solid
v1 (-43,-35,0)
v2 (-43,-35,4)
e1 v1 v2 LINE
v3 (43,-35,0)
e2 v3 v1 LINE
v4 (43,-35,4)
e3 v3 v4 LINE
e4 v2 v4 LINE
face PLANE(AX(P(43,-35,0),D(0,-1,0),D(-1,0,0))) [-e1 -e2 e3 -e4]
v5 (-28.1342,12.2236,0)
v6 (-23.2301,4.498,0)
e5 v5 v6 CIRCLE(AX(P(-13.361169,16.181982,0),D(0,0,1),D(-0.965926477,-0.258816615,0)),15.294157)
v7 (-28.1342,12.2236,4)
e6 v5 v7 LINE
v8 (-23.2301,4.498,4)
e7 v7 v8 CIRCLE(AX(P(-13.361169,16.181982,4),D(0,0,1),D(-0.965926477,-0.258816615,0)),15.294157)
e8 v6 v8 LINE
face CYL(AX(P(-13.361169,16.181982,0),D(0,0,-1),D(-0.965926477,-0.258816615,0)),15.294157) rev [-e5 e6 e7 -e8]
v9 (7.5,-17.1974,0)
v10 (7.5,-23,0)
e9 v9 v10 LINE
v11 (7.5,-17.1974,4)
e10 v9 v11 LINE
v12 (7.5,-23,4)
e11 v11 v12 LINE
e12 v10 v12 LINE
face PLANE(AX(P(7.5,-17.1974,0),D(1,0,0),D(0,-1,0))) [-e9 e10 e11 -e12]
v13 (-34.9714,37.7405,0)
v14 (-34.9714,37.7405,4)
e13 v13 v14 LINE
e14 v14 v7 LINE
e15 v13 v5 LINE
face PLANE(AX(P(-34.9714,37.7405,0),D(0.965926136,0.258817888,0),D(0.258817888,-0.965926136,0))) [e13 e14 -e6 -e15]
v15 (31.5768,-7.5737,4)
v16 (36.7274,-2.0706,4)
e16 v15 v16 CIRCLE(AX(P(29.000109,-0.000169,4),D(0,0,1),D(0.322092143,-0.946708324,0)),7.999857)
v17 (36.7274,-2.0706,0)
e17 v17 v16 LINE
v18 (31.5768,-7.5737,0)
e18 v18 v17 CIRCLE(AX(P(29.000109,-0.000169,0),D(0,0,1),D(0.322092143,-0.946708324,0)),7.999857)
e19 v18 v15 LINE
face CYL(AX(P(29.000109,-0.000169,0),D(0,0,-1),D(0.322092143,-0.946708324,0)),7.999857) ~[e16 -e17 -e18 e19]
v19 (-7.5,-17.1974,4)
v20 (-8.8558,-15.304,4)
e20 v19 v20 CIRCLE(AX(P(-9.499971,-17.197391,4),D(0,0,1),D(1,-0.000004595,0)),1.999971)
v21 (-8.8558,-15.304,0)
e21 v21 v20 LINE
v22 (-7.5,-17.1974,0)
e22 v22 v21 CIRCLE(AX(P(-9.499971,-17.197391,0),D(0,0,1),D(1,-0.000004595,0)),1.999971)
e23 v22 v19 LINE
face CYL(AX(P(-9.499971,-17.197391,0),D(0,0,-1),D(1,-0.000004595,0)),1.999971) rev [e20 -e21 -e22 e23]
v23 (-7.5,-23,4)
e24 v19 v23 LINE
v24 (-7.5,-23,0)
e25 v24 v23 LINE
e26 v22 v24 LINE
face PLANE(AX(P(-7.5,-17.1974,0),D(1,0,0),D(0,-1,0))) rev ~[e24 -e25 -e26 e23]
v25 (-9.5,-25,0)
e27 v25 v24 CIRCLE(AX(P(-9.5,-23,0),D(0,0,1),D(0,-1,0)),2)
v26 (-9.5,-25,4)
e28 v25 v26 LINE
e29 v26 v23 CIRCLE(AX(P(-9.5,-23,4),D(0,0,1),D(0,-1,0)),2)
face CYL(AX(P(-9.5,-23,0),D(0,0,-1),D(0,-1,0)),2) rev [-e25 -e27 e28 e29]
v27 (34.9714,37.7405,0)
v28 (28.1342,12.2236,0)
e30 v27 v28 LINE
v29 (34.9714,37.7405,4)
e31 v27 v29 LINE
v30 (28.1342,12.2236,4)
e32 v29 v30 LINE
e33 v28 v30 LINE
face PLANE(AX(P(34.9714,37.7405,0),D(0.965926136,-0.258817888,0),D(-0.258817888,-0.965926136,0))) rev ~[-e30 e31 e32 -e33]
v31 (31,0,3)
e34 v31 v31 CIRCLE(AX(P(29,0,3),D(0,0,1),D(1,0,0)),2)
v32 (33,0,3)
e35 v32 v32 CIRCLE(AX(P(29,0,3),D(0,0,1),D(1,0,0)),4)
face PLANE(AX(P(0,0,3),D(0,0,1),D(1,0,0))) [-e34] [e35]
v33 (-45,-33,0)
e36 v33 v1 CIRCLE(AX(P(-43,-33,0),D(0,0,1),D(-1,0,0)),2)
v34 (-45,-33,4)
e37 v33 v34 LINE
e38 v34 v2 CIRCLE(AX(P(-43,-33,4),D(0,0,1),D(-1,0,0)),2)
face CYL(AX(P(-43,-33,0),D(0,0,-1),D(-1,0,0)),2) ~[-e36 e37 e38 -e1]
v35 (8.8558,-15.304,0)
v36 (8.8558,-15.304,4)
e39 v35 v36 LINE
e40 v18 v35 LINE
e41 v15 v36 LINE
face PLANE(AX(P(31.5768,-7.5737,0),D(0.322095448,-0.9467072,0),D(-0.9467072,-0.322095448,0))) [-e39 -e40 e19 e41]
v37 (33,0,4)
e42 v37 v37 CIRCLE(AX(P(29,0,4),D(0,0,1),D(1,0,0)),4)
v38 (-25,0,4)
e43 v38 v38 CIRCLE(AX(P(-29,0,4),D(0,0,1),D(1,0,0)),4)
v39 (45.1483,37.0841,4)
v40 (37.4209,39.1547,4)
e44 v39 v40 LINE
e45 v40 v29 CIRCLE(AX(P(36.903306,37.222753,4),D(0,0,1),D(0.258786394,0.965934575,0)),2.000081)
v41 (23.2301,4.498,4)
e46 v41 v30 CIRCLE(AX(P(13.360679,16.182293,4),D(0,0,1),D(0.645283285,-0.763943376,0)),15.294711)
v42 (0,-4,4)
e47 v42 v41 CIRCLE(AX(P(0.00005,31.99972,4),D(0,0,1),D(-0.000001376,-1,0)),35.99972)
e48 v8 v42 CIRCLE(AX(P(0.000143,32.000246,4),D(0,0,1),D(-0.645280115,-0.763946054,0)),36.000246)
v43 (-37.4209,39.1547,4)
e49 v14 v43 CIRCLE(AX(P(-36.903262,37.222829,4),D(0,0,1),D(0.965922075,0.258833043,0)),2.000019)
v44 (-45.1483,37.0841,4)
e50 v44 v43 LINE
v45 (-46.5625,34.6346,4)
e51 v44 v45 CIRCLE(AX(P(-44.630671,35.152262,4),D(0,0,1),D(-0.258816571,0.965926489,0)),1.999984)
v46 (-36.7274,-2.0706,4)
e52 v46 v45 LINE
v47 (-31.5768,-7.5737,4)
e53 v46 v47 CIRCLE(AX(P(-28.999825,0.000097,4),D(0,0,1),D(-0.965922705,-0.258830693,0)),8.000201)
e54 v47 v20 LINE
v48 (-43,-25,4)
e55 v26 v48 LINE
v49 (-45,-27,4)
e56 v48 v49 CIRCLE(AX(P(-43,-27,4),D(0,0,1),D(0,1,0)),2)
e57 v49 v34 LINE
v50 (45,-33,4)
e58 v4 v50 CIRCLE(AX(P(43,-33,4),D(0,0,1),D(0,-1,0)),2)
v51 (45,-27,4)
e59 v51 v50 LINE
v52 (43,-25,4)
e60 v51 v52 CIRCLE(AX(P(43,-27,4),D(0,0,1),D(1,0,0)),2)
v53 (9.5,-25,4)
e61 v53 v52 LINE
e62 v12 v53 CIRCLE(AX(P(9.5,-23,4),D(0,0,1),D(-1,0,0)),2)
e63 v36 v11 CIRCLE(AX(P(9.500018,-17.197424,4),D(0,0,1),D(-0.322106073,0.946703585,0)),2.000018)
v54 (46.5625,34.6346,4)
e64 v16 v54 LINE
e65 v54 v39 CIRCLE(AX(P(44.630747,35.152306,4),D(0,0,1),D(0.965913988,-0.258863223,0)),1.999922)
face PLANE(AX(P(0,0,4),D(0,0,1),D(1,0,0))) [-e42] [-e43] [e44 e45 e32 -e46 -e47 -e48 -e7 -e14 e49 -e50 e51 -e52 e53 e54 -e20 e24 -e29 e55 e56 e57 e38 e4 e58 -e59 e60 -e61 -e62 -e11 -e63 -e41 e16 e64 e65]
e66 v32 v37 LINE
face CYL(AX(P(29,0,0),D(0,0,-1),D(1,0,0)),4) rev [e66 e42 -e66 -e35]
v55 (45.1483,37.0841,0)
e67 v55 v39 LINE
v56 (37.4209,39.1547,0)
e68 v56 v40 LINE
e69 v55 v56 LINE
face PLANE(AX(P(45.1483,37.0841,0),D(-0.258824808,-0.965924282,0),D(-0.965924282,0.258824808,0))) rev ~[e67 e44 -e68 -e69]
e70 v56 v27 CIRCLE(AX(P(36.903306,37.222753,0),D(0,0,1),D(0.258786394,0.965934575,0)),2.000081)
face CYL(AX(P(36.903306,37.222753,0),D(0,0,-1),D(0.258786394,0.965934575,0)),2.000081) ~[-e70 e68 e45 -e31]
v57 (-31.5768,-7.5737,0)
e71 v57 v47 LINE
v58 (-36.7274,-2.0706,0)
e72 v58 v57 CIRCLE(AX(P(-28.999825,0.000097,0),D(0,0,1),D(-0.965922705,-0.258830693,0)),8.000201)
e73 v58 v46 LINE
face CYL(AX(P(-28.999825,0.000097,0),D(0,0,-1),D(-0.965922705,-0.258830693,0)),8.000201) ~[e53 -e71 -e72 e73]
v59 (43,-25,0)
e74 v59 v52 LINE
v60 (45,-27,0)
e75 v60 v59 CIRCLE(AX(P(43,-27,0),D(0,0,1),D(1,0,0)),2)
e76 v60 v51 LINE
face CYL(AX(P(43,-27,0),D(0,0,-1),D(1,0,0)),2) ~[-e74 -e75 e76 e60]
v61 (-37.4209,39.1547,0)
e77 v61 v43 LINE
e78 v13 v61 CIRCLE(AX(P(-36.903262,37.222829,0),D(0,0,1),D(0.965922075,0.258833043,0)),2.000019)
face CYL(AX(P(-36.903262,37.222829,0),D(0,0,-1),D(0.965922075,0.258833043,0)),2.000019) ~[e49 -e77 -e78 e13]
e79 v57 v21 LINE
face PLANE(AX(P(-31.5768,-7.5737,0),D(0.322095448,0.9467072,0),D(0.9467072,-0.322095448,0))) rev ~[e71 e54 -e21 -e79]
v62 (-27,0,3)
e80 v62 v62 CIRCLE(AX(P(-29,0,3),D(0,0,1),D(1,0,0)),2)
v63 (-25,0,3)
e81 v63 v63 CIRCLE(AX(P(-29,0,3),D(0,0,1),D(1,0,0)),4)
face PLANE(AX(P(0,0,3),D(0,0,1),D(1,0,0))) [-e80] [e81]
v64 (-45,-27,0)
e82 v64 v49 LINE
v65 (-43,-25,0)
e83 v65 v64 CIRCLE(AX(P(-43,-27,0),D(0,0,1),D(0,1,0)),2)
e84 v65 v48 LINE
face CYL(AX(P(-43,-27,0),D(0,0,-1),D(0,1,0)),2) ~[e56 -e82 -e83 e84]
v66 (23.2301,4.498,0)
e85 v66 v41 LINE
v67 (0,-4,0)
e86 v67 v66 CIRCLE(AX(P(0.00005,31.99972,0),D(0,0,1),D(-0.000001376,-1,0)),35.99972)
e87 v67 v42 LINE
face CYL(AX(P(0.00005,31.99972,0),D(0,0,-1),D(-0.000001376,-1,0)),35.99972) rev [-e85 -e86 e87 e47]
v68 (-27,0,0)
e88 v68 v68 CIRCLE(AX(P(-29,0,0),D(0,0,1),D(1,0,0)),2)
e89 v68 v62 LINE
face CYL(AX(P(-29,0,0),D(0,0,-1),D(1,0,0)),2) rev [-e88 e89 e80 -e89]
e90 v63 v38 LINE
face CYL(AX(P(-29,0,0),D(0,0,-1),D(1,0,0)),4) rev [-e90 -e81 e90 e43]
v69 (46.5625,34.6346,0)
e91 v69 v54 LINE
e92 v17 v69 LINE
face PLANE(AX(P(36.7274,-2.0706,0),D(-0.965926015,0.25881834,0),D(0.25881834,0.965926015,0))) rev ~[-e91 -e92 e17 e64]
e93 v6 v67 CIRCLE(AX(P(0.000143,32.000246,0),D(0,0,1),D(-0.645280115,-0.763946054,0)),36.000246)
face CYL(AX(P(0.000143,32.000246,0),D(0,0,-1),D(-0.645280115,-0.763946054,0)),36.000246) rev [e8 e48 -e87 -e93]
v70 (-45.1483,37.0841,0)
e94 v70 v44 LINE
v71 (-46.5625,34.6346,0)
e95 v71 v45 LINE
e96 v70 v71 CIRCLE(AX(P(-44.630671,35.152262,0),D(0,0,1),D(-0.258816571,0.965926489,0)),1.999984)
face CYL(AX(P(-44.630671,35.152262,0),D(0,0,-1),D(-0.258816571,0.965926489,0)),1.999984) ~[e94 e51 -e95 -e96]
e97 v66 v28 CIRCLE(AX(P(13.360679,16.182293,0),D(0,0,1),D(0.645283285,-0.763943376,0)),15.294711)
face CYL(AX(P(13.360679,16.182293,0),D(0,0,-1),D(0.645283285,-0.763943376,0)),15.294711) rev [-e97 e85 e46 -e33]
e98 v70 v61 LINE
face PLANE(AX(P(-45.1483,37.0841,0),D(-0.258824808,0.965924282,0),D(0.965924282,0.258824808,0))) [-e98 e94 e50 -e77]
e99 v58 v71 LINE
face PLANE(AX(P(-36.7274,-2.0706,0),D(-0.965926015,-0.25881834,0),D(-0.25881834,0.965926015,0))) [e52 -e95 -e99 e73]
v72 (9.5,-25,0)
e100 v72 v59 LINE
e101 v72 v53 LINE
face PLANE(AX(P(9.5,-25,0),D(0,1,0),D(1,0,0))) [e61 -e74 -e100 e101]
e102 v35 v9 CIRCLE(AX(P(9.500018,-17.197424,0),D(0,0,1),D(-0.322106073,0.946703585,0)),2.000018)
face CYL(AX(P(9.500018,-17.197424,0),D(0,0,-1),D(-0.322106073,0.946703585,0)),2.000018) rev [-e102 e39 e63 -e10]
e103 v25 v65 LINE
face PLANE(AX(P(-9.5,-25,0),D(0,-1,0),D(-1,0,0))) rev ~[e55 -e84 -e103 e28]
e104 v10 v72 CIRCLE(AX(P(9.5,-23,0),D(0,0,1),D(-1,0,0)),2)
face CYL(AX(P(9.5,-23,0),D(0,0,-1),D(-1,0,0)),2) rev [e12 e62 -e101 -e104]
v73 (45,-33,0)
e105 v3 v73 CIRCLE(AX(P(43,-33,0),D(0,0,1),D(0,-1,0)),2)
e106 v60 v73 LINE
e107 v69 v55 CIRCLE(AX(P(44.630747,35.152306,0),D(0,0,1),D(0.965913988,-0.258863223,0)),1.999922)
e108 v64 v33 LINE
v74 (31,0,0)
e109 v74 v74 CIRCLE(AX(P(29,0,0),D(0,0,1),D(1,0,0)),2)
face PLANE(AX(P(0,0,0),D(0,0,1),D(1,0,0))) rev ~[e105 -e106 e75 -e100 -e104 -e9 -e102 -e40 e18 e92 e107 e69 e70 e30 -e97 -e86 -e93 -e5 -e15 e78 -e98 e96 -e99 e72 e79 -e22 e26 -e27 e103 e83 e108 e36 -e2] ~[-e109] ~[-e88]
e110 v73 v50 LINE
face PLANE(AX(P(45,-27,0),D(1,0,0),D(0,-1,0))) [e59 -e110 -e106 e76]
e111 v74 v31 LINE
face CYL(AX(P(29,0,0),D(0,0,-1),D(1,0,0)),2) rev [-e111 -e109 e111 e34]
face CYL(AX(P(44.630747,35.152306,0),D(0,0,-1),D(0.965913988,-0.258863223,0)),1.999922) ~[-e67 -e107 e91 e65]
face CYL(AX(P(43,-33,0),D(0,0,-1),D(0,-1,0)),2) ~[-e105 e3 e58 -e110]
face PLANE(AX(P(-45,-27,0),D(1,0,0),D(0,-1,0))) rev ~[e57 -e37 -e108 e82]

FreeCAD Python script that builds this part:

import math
import FreeCAD as App
import Part
import Sketcher
Q = App.Units.Quantity

doc = App.newDocument("Part")
body = doc.addObject("PartDesign::Body", "Body")
body.AllowCompound = True

sketch1 = doc.addObject("Sketcher::SketchObject", "Sketch")
body.addObject(sketch1)
sketch1.AttachmentSupport = (doc.XY_Plane, [""])
sketch1.MapMode = "FlatFace"
sketch1.addGeometry([
    Part.Circle(App.Vector(-29, 0, 0), App.Vector(0, 0, 1), 4),
    Part.Circle(App.Vector(-29, 0, 0), App.Vector(0, 0, 1), 2),
    Part.Circle(App.Vector(29, 0, 0), App.Vector(0, 0, 1), 4),
    Part.Circle(App.Vector(29, 0, 0), App.Vector(0, 0, 1), 2),
], False)
sketch1.addConstraint([
    Sketcher.Constraint("Coincident", 1, 3, 0, 3),
    Sketcher.Constraint("Coincident", 3, 3, 2, 3),
    Sketcher.Constraint("Equal", 0, 2),
    Sketcher.Constraint("Equal", 1, 3),
    Sketcher.Constraint("Symmetric", 0, 3, 2, 3, -1, 1),
    Sketcher.Constraint("PointOnObject", 0, 3, -1),
    Sketcher.Constraint("Diameter", 0, 8.0),
    Sketcher.Constraint("Diameter", 1, 4.0),
    Sketcher.Constraint("DistanceX", 0, 3, 2, 3, 58.0),
])
pad1 = doc.addObject("PartDesign::Pad", "Pad")
body.addObject(pad1)
pad1.Profile = sketch1
pad1.Length = 3

sketch2 = doc.addObject("Sketcher::SketchObject", "Sketch001")
body.addObject(sketch2)
sketch2.AttachmentSupport = (doc.XY_Plane, [""])
sketch2.MapMode = "FlatFace"
sketch2.addGeometry([
    Part.LineSegment(App.Vector(-46.6, 34.6, 0), App.Vector(-36.7, -2.1, 0)),
    Part.ArcOfCircle(Part.Circle(App.Vector(-29, 0, 0), App.Vector(0, 0, 1), 8), math.radians(-165), math.radians(-109)),
    Part.LineSegment(App.Vector(-31.6, -7.6, 0), App.Vector(-8.9, -15.3, 0)),
    Part.ArcOfCircle(Part.Circle(App.Vector(-9.5, -17.2, 0), App.Vector(0, 0, 1), 2), math.radians(0), math.radians(71)),
    Part.LineSegment(App.Vector(-7.5, -17.2, 0), App.Vector(-7.5, -23, 0)),
    Part.ArcOfCircle(Part.Circle(App.Vector(-9.5, -23, 0), App.Vector(0, 0, 1), 2), math.radians(-90), math.radians(0)),
    Part.LineSegment(App.Vector(-9.5, -25, 0), App.Vector(-43, -25, 0)),
    Part.ArcOfCircle(Part.Circle(App.Vector(-43, -27, 0), App.Vector(0, 0, 1), 2), math.radians(90), math.radians(180)),
    Part.LineSegment(App.Vector(-45, -27, 0), App.Vector(-45, -33, 0)),
    Part.ArcOfCircle(Part.Circle(App.Vector(-43, -33, 0), App.Vector(0, 0, 1), 2), math.radians(180), math.radians(270)),
    Part.LineSegment(App.Vector(-43, -35, 0), App.Vector(43, -35, 0)),
    Part.ArcOfCircle(Part.Circle(App.Vector(43, -33, 0), App.Vector(0, 0, 1), 2), math.radians(-90), math.radians(0)),
    Part.LineSegment(App.Vector(45, -33, 0), App.Vector(45, -27, 0)),
    Part.ArcOfCircle(Part.Circle(App.Vector(43, -27, 0), App.Vector(0, 0, 1), 2), math.radians(0), math.radians(90)),
    Part.LineSegment(App.Vector(43, -25, 0), App.Vector(9.5, -25, 0)),
    Part.ArcOfCircle(Part.Circle(App.Vector(9.5, -23, 0), App.Vector(0, 0, 1), 2), math.radians(180), math.radians(270)),
    Part.LineSegment(App.Vector(7.5, -23, 0), App.Vector(7.5, -17.2, 0)),
    Part.ArcOfCircle(Part.Circle(App.Vector(9.5, -17.2, 0), App.Vector(0, 0, 1), 2), math.radians(109), math.radians(180)),
    Part.LineSegment(App.Vector(8.9, -15.3, 0), App.Vector(31.6, -7.6, 0)),
    Part.ArcOfCircle(Part.Circle(App.Vector(29, 0, 0), App.Vector(0, 0, 1), 8), math.radians(-71), math.radians(-15)),
    Part.LineSegment(App.Vector(36.7, -2.1, 0), App.Vector(46.6, 34.6, 0)),
    Part.ArcOfCircle(Part.Circle(App.Vector(44.6, 35.2, 0), App.Vector(0, 0, 1), 2), math.radians(-15), math.radians(75)),
    Part.LineSegment(App.Vector(45.1, 37.1, 0), App.Vector(37.4, 39.2, 0)),
    Part.ArcOfCircle(Part.Circle(App.Vector(36.9, 37.2, 0), App.Vector(0, 0, 1), 2), math.radians(75), math.radians(165)),
    Part.LineSegment(App.Vector(35, 37.7, 0), App.Vector(28.1, 12.2, 0)),
    Part.ArcOfCircle(Part.Circle(App.Vector(13.4, 16.2, 0), App.Vector(0, 0, 1), 15.3), math.radians(-50), math.radians(-15)),
    Part.ArcOfCircle(Part.Circle(App.Vector(0, 32, 0), App.Vector(0, 0, 1), 36), math.radians(-90), math.radians(-50)),
    Part.ArcOfCircle(Part.Circle(App.Vector(0, 32, 0), App.Vector(0, 0, 1), 36), math.radians(-130), math.radians(-90)),
    Part.ArcOfCircle(Part.Circle(App.Vector(-13.4, 16.2, 0), App.Vector(0, 0, 1), 15.3), math.radians(-165), math.radians(-130)),
    Part.LineSegment(App.Vector(-28.1, 12.2, 0), App.Vector(-35, 37.7, 0)),
    Part.ArcOfCircle(Part.Circle(App.Vector(-36.9, 37.2, 0), App.Vector(0, 0, 1), 2), math.radians(15), math.radians(105)),
    Part.LineSegment(App.Vector(-37.4, 39.2, 0), App.Vector(-45.1, 37.1, 0)),
    Part.ArcOfCircle(Part.Circle(App.Vector(-44.6, 35.2, 0), App.Vector(0, 0, 1), 2), math.radians(105), math.radians(195)),
    Part.Circle(App.Vector(-29, 0, 0), App.Vector(0, 0, 1), 4),
    Part.Circle(App.Vector(29, 0, 0), App.Vector(0, 0, 1), 4),
], False)
sketch2.addConstraint([
    Sketcher.Constraint("Tangent", 0, 2, 1, 1),
    Sketcher.Constraint("Tangent", 1, 2, 2, 1),
    Sketcher.Constraint("Tangent", 2, 2, 3, 2),
    Sketcher.Constraint("Tangent", 3, 1, 4, 1),
    Sketcher.Constraint("Tangent", 4, 2, 5, 2),
    Sketcher.Constraint("Tangent", 5, 1, 6, 1),
    Sketcher.Constraint("Tangent", 6, 2, 7, 1),
    Sketcher.Constraint("Tangent", 7, 2, 8, 1),
    Sketcher.Constraint("Tangent", 8, 2, 9, 1),
    Sketcher.Constraint("Tangent", 9, 2, 10, 1),
    Sketcher.Constraint("Tangent", 10, 2, 11, 1),
    Sketcher.Constraint("Tangent", 11, 2, 12, 1),
    Sketcher.Constraint("Tangent", 12, 2, 13, 1),
    Sketcher.Constraint("Tangent", 13, 2, 14, 1),
    Sketcher.Constraint("Tangent", 14, 2, 15, 2),
    Sketcher.Constraint("Tangent", 15, 1, 16, 1),
    Sketcher.Constraint("Tangent", 16, 2, 17, 2),
    Sketcher.Constraint("Tangent", 17, 1, 18, 1),
    Sketcher.Constraint("Tangent", 18, 2, 19, 1),
    Sketcher.Constraint("Tangent", 19, 2, 20, 1),
    Sketcher.Constraint("Tangent", 20, 2, 21, 1),
    Sketcher.Constraint("Tangent", 21, 2, 22, 1),
    Sketcher.Constraint("Tangent", 22, 2, 23, 1),
    Sketcher.Constraint("Tangent", 23, 2, 24, 1),
    Sketcher.Constraint("Tangent", 24, 2, 25, 2),
    Sketcher.Constraint("Tangent", 25, 1, 26, 2),
    Sketcher.Constraint("Tangent", 26, 1, 27, 2),
    Sketcher.Constraint("Tangent", 27, 1, 28, 2),
    Sketcher.Constraint("Tangent", 28, 1, 29, 1),
    Sketcher.Constraint("Tangent", 29, 2, 30, 1),
    Sketcher.Constraint("Tangent", 30, 2, 31, 1),
    Sketcher.Constraint("Tangent", 31, 2, 32, 1),
    Sketcher.Constraint("Tangent", 32, 2, 0, 1),
    Sketcher.Constraint("Vertical", 4),
    Sketcher.Constraint("Horizontal", 6),
    Sketcher.Constraint("Vertical", 8),
    Sketcher.Constraint("Horizontal", 10),
    Sketcher.Constraint("Vertical", 12),
    Sketcher.Constraint("Horizontal", 14),
    Sketcher.Constraint("Vertical", 16),
    Sketcher.Constraint("Coincident", 33, 3, 1, 3),
    Sketcher.Constraint("Coincident", 34, 3, 19, 3),
    Sketcher.Constraint("Equal", 3, 5),
    Sketcher.Constraint("Equal", 5, 7),
    Sketcher.Constraint("Equal", 7, 9),
    Sketcher.Constraint("Equal", 9, 11),
    Sketcher.Constraint("Equal", 11, 13),
    Sketcher.Constraint("Equal", 13, 15),
    Sketcher.Constraint("Equal", 15, 17),
    Sketcher.Constraint("Equal", 1, 19),
    Sketcher.Constraint("Equal", 17, 21),
    Sketcher.Constraint("Equal", 21, 23),
    Sketcher.Constraint("Equal", 26, 27),
    Sketcher.Constraint("Equal", 25, 28),
    Sketcher.Constraint("Equal", 23, 30),
    Sketcher.Constraint("Equal", 30, 32),
    Sketcher.Constraint("Equal", 33, 34),
    Sketcher.Constraint("Symmetric", 1, 3, 19, 3, -1, 1),
    Sketcher.Constraint("Symmetric", 7, 3, 13, 3, -2),
    Sketcher.Constraint("Symmetric", 3, 3, 17, 3, -2),
    Sketcher.Constraint("Symmetric", 25, 3, 28, 3, -2),
    Sketcher.Constraint("Symmetric", 23, 3, 30, 3, -2),
    Sketcher.Constraint("Symmetric", 21, 3, 32, 3, -2),
    Sketcher.Constraint("PointOnObject", 1, 3, -1),
    Sketcher.Constraint("PointOnObject", 26, 1, -2),
    Sketcher.Constraint("Perpendicular", 20, 22),
    Sketcher.Constraint("Perpendicular", 22, 24),
    Sketcher.Constraint("Diameter", 33, 8.0),
    Sketcher.Constraint("Radius", 1, 8.0),
    Sketcher.Constraint("Radius", 3, 2.0),
    Sketcher.Constraint("Radius", 26, 36.0),
    Sketcher.Constraint("Distance", 2, 24.0),
    Sketcher.Constraint("Distance", 22, 8.0),
    Sketcher.Constraint("DistanceY", 5, 1, -1, 1, 25.0),
    Sketcher.Constraint("DistanceY", 26, 1, -1, 1, 4.0),
    Sketcher.Constraint("DistanceY", 9, 3, 5, 3, 10.0),
    Sketcher.Constraint("DistanceX", 4, 2, 15, 1, 15.0),
    Sketcher.Constraint("Radius", 25, 15.2944),
    Sketcher.Constraint("DistanceX", 10, 1, 10, 2, 86.0),
    Sketcher.Constraint("Angle", 0, Q("-75 deg")),
    Sketcher.Constraint("Distance", 0, 38.0),
    Sketcher.Constraint("DistanceX", 1, 3, -1, 1, 29.0),
])
pad2 = doc.addObject("PartDesign::Pad", "Pad001")
body.addObject(pad2)
pad2.Profile = sketch2
pad2.Length = 4

doc.recompute()
